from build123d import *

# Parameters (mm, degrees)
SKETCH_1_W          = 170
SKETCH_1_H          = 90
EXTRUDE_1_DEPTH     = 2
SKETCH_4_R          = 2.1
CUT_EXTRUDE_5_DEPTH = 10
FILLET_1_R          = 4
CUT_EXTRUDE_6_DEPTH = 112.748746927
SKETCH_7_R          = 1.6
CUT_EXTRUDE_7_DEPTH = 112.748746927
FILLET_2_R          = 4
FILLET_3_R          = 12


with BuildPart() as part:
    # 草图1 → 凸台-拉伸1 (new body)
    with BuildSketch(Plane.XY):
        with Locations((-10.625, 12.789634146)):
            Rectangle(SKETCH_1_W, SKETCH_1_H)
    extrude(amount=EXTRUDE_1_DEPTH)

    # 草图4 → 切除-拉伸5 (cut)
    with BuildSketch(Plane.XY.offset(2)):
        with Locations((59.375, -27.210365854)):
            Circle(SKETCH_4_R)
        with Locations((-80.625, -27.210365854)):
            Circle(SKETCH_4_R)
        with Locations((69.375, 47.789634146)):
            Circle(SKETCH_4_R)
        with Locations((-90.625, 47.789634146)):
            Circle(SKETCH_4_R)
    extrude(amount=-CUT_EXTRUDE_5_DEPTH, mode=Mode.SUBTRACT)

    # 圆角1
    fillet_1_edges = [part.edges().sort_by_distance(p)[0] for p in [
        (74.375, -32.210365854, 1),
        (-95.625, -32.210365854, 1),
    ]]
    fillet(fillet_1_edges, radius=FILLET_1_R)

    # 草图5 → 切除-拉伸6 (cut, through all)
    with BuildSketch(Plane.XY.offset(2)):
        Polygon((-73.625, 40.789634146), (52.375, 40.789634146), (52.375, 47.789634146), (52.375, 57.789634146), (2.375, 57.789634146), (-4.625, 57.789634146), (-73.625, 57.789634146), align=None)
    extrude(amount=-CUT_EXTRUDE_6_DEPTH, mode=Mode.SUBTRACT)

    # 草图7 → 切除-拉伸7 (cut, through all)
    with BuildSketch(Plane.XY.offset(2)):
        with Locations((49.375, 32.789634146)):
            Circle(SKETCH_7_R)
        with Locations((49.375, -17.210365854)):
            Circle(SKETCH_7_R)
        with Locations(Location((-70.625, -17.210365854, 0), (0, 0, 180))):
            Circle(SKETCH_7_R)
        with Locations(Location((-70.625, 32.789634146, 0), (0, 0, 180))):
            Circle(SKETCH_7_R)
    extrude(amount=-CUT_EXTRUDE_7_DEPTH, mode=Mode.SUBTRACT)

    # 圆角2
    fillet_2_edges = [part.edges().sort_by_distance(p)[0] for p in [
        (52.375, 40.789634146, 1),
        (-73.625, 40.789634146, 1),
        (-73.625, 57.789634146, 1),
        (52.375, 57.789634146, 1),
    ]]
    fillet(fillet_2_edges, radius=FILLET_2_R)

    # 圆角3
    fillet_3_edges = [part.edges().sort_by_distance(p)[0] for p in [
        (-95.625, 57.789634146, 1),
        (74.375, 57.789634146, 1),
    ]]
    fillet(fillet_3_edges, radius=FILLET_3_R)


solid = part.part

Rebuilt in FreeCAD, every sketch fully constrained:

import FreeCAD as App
import Part
import Sketcher
from FreeCAD import Vector


def edges_at(feature, points):
    """Names of the edges that pass closest to the given points."""
    edges = feature.Shape.Edges
    near = lambda p: min(range(len(edges)), key=lambda i: edges[i].distToShape(Part.Vertex(*p))[0])
    return sorted({f"Edge{near(p) + 1}" for p in points})


def add_polygon(sketch, points):
    """Adds a closed chain of lines whose ends are joined by coincident constraints."""
    first, n = sketch.GeometryCount, len(points)
    for a, b in zip(points, points[1:] + points[:1]):
        sketch.addGeometry(Part.LineSegment(App.Vector(*a, 0), App.Vector(*b, 0)), False)
    for i in range(n):
        sketch.addConstraint(Sketcher.Constraint("Coincident", first + i, 2, first + (i + 1) % n, 1))

doc = App.newDocument("Part")
body = doc.addObject("PartDesign::Body", "Body")

# Sketch on XY plane
sketch1 = body.newObject("Sketcher::SketchObject", "Sketch")
sketch1.AttachmentSupport = (doc.getObject("XY_Plane"), [""])
sketch1.MapMode = "FlatFace"
add_polygon(sketch1, [(-95.625, 57.789634), (-95.625, -32.210366), (74.375, -32.210366), (74.375, 57.789634)])  # lines 0-3
sketch1.addConstraint(Sketcher.Constraint("Vertical", 0))
sketch1.addConstraint(Sketcher.Constraint("Horizontal", 1))
sketch1.addConstraint(Sketcher.Constraint("Vertical", 2))
sketch1.addConstraint(Sketcher.Constraint("Horizontal", 3))
sketch1.addConstraint(Sketcher.Constraint("DistanceX", 1, 1, 1, 2, 170.0))
sketch1.addConstraint(Sketcher.Constraint("DistanceY", 0, 2, 0, 1, 90.0))
sketch1.addConstraint(Sketcher.Constraint("DistanceX", 0, 2, -1, 1, 95.625))
sketch1.addConstraint(Sketcher.Constraint("DistanceY", 0, 2, -1, 1, 32.210366))
pad1 = body.newObject("PartDesign::Pad", "Pad")
pad1.Profile = sketch1
pad1.Length = 2

# Sketch on XY plane
sketch2 = body.newObject("Sketcher::SketchObject", "Sketch001")
sketch2.AttachmentSupport = (doc.getObject("XY_Plane"), [""])
sketch2.MapMode = "FlatFace"
sketch2.AttachmentOffset = App.Placement(Vector(0, 0, 2), App.Rotation())
sketch2.addGeometry(Part.Circle(Vector(59.375, -27.210366, 0), Vector(0, 0, 1), 2.1), False)
sketch2.addGeometry(Part.Circle(Vector(-80.625, -27.210366, 0), Vector(0, 0, 1), 2.1), False)
sketch2.addGeometry(Part.Circle(Vector(69.375, 47.789634, 0), Vector(0, 0, 1), 2.1), False)
sketch2.addGeometry(Part.Circle(Vector(-90.625, 47.789634, 0), Vector(0, 0, 1), 2.1), False)
sketch2.addConstraint(Sketcher.Constraint("Equal", 0, 1))
sketch2.addConstraint(Sketcher.Constraint("Equal", 1, 2))
sketch2.addConstraint(Sketcher.Constraint("Equal", 2, 3))
sketch2.addConstraint(Sketcher.Constraint("Horizontal", 0, 3, 1, 3))
sketch2.addConstraint(Sketcher.Constraint("Horizontal", 2, 3, 3, 3))
sketch2.addConstraint(Sketcher.Constraint("Diameter", 0, 4.2))
sketch2.addConstraint(Sketcher.Constraint("DistanceX", 1, 3, 0, 3, 140.0))
sketch2.addConstraint(Sketcher.Constraint("DistanceX", 0, 3, 2, 3, 10.0))
sketch2.addConstraint(Sketcher.Constraint("DistanceY", 0, 3, 2, 3, 75.0))
sketch2.addConstraint(Sketcher.Constraint("DistanceX", 3, 3, 1, 3, 10.0))
sketch2.addConstraint(Sketcher.Constraint("DistanceX", -1, 1, 0, 3, 59.375))
sketch2.addConstraint(Sketcher.Constraint("DistanceY", 0, 3, -1, 1, 27.210366))
pocket1 = body.newObject("PartDesign::Pocket", "Pocket")
pocket1.Profile = sketch2
pocket1.Length = 10
doc.recompute()

fillet = body.newObject("PartDesign::Fillet", "Fillet")
fillet.Base = (pocket1, edges_at(pocket1, [(74.375, -32.21, 1), (-95.625, -32.21, 1)]))
fillet.Radius = 4

# Sketch on XY plane
sketch3 = body.newObject("Sketcher::SketchObject", "Sketch002")
sketch3.AttachmentSupport = (doc.getObject("XY_Plane"), [""])
sketch3.MapMode = "FlatFace"
sketch3.AttachmentOffset = App.Placement(Vector(0, 0, 2), App.Rotation())
add_polygon(sketch3, [(-73.625, 40.789634), (52.375, 40.789634), (52.375, 57.789634), (-73.625, 57.789634)])  # lines 0-3
sketch3.addConstraint(Sketcher.Constraint("Horizontal", 0))
sketch3.addConstraint(Sketcher.Constraint("Vertical", 1))
sketch3.addConstraint(Sketcher.Constraint("Horizontal", 2))
sketch3.addConstraint(Sketcher.Constraint("Vertical", 3))
sketch3.addConstraint(Sketcher.Constraint("DistanceX", 0, 1, 0, 2, 126.0))
sketch3.addConstraint(Sketcher.Constraint("DistanceY", 1, 1, 1, 2, 17.0))
sketch3.addConstraint(Sketcher.Constraint("DistanceX", -1, 1, 0, 2, 52.375))
sketch3.addConstraint(Sketcher.Constraint("DistanceY", -1, 1, 0, 2, 40.789634))
pocket2 = body.newObject("PartDesign::Pocket", "Pocket001")
pocket2.Profile = sketch3
pocket2.Type = "ThroughAll"

# Sketch on XY plane
sketch4 = body.newObject("Sketcher::SketchObject", "Sketch003")
sketch4.AttachmentSupport = (doc.getObject("XY_Plane"), [""])
sketch4.MapMode = "FlatFace"
sketch4.AttachmentOffset = App.Placement(Vector(0, 0, 2), App.Rotation())
sketch4.addGeometry(Part.Circle(Vector(49.375, 32.789634, 0), Vector(0, 0, 1), 1.6), False)
sketch4.addGeometry(Part.Circle(Vector(49.375, -17.210366, 0), Vector(0, 0, 1), 1.6), False)
sketch4.addGeometry(Part.Circle(Vector(-70.625, -17.210366, 0), Vector(0, 0, 1), 1.6), False)
sketch4.addGeometry(Part.Circle(Vector(-70.625, 32.789634, 0), Vector(0, 0, 1), 1.6), False)
sketch4.addConstraint(Sketcher.Constraint("Equal", 0, 1))
sketch4.addConstraint(Sketcher.Constraint("Equal", 1, 2))
sketch4.addConstraint(Sketcher.Constraint("Equal", 2, 3))
sketch4.addConstraint(Sketcher.Constraint("Horizontal", 1, 3, 2, 3))
sketch4.addConstraint(Sketcher.Constraint("Horizontal", 0, 3, 3, 3))
sketch4.addConstraint(Sketcher.Constraint("Vertical", 0, 3, 1, 3))
sketch4.addConstraint(Sketcher.Constraint("Vertical", 2, 3, 3, 3))
sketch4.addConstraint(Sketcher.Constraint("Diameter", 0, 3.2))
sketch4.addConstraint(Sketcher.Constraint("DistanceY", 1, 3, 0, 3, 50.0))
sketch4.addConstraint(Sketcher.Constraint("DistanceX", 2, 3, 1, 3, 120.0))
sketch4.addConstraint(Sketcher.Constraint("DistanceX", -1, 1, 0, 3, 49.375))
sketch4.addConstraint(Sketcher.Constraint("DistanceY", -1, 1, 0, 3, 32.789634))
pocket3 = body.newObject("PartDesign::Pocket", "Pocket002")
pocket3.Profile = sketch4
pocket3.Type = "ThroughAll"
doc.recompute()

fillet2 = body.newObject("PartDesign::Fillet", "Fillet001")
fillet2.Base = (pocket3, edges_at(pocket3, [
    (52.375, 40.79, 1),
    (-73.625, 40.79, 1),
    (-73.625, 57.79, 1),
    (52.375, 57.79, 1),
]))
fillet2.Radius = 4
doc.recompute()

fillet3 = body.newObject("PartDesign::Fillet", "Fillet002")
fillet3.Base = (fillet2, edges_at(fillet2, [(-95.625, 57.79, 1), (74.375, 57.79, 1)]))
fillet3.Radius = 12

doc.recompute()
